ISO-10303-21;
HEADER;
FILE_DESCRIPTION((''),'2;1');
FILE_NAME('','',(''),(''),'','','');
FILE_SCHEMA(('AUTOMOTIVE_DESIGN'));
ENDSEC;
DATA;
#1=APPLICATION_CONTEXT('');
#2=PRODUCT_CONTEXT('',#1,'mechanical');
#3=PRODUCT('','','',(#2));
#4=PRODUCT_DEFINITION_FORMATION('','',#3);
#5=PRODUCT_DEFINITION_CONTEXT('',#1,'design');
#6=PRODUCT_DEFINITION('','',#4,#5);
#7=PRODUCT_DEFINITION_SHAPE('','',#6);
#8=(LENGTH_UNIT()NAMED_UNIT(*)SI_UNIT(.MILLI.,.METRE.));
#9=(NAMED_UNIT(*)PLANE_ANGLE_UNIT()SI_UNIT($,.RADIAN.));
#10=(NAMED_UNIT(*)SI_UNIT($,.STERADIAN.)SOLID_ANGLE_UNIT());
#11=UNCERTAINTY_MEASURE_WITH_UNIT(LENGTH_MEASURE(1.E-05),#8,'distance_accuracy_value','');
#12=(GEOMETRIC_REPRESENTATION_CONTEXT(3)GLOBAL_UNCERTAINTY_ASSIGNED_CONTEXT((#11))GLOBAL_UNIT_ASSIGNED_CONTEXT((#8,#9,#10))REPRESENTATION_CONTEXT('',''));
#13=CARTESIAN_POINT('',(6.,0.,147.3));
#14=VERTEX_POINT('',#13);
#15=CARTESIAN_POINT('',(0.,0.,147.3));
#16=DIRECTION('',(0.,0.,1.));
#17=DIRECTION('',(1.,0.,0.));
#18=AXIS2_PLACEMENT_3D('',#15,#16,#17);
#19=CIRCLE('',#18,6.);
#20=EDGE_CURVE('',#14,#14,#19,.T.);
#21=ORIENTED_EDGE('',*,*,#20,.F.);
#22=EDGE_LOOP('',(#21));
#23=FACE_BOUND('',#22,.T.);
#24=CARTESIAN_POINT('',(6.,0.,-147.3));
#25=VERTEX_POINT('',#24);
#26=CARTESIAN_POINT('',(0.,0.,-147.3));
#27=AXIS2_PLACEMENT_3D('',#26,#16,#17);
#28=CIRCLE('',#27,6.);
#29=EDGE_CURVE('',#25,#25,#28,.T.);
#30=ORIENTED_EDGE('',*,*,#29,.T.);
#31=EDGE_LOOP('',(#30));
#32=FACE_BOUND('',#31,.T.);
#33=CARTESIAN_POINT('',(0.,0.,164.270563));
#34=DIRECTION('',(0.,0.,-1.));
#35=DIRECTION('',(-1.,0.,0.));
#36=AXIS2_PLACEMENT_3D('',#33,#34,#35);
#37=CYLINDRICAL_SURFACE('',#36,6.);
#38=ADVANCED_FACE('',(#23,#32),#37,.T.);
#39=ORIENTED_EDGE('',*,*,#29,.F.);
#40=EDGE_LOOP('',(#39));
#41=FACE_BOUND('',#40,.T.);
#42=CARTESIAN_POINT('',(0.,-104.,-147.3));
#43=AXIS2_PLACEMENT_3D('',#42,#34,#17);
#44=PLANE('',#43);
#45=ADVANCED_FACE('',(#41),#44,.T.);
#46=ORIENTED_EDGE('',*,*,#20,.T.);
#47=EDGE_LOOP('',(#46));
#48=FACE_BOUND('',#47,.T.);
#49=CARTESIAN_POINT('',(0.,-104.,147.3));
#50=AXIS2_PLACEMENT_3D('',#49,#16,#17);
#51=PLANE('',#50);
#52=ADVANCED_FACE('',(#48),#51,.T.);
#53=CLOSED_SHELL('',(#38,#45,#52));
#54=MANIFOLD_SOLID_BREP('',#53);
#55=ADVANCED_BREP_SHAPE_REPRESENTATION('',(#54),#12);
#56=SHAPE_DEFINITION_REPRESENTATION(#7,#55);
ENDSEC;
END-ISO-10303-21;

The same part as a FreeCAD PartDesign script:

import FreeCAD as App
import Part
import Sketcher
from FreeCAD import Vector
Q = App.Units.Quantity

doc = App.newDocument("Part")
body = doc.addObject("PartDesign::Body", "Body")

# Sketch on XY plane
sketch1 = body.newObject("Sketcher::SketchObject", "Sketch")
sketch1.AttachmentSupport = (doc.getObject("XY_Plane"), [""])
sketch1.MapMode = "FlatFace"
sketch1.addGeometry(Part.Circle(Vector(0, 0, 0), Vector(0, 0, 1), 6), False)
sketch1.addConstraint(Sketcher.Constraint("Coincident", 0, 3, -1, 1))
sketch1.addConstraint(Sketcher.Constraint("Diameter", 0, Q("12 mm")))
pad1 = body.newObject("PartDesign::Pad", "Pad")
pad1.Profile = sketch1
pad1.Length = 147.3
body2 = doc.addObject("PartDesign::Body", "Body001")
doc.recompute()

body2.BaseFeature = body
doc.recompute()

mirroring = doc.addObject("Part::Mirroring", "Mirroring")
mirroring.Source = body
mirroring.Base = Vector(0, 0, 0)
mirroring.Normal = Vector(0, 0, 1)
body3 = doc.addObject("PartDesign::Body", "Body002")
body3.BaseFeature = mirroring
boolean = body2.newObject("PartDesign::Boolean", "Boolean")
boolean.Type = "Fuse"
boolean.addObjects([body3])
doc.recompute()
mirroring.Visibility = False

doc.recompute()
